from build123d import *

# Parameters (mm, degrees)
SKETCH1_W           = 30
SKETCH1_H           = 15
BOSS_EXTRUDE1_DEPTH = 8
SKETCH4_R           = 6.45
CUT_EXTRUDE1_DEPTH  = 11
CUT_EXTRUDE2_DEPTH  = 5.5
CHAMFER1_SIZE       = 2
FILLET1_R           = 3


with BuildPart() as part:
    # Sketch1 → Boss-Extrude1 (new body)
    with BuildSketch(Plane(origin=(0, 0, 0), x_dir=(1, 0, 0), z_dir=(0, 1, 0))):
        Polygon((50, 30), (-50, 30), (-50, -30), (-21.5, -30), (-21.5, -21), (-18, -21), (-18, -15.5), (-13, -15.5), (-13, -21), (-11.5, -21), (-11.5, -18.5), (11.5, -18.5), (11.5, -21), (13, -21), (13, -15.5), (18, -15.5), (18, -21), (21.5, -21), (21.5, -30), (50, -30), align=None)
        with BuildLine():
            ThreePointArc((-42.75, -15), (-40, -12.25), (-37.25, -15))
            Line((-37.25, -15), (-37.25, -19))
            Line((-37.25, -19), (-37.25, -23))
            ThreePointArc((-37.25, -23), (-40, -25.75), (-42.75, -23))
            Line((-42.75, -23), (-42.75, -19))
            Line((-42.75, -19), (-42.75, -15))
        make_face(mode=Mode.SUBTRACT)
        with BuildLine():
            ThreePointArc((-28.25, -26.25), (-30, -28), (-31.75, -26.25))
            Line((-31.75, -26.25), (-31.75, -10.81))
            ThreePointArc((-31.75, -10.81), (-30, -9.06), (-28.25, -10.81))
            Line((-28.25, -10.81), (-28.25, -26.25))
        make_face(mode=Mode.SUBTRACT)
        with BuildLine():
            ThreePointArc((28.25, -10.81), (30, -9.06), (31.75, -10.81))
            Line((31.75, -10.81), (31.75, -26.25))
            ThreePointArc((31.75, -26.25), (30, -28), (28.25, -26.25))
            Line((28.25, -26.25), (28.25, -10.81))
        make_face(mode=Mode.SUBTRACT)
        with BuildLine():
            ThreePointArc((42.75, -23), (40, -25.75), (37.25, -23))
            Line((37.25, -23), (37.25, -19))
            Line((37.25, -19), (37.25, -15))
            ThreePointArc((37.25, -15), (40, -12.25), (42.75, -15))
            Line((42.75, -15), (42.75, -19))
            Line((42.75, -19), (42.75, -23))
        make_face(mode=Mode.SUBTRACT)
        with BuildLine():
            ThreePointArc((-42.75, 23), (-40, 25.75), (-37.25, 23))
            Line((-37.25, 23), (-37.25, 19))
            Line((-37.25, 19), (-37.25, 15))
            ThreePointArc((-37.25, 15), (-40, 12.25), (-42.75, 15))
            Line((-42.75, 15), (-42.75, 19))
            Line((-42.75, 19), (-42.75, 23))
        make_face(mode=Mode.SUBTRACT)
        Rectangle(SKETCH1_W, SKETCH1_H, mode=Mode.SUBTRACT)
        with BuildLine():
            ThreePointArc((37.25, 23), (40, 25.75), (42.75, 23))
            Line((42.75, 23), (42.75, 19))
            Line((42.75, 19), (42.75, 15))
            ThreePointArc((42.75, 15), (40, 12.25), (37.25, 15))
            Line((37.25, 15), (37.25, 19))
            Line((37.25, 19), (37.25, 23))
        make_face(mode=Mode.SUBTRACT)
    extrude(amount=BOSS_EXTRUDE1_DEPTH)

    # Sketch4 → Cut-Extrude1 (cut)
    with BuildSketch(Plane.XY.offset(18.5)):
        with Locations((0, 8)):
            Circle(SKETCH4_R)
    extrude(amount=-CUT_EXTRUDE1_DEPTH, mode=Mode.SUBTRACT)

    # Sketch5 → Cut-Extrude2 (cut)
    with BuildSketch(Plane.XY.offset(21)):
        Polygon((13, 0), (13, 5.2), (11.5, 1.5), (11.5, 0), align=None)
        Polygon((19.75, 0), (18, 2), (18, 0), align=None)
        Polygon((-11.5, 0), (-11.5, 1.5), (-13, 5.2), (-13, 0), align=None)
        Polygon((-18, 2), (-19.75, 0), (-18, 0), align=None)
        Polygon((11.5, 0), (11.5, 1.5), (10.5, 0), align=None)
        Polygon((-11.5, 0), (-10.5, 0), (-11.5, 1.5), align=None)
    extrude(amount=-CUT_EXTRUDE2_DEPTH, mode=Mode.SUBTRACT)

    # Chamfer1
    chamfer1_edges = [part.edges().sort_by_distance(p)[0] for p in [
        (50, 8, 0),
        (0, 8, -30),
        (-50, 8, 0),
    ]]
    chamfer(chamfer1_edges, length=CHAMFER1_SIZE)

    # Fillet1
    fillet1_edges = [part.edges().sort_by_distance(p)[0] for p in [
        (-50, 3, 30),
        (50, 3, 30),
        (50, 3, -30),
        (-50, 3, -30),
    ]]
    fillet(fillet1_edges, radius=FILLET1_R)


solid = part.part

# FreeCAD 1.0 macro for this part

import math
import FreeCAD as App
import Part
import Sketcher

V = App.Vector
Q = App.Units.Quantity


def edges_at(feature, points):
    """Names of the edges that pass closest to the given points."""
    edges = feature.Shape.Edges
    near = lambda p: min(range(len(edges)), key=lambda i: edges[i].distToShape(Part.Vertex(*p))[0])
    return sorted({f"Edge{near(p) + 1}" for p in points})


def add_polygon(sketch, points):
    """Adds a closed chain of lines whose ends are joined by coincident constraints."""
    first, n = sketch.GeometryCount, len(points)
    for a, b in zip(points, points[1:] + points[:1]):
        sketch.addGeometry(Part.LineSegment(App.Vector(*a, 0), App.Vector(*b, 0)), False)
    for i in range(n):
        sketch.addConstraint(Sketcher.Constraint("Coincident", first + i, 2, first + (i + 1) % n, 1))

doc = App.newDocument("Part")
body = doc.addObject("PartDesign::Body", "Body")

sketch1 = doc.addObject("Sketcher::SketchObject", "Sketch")
body.addObject(sketch1)
sketch1.AttachmentSupport = (doc.XZ_Plane, [""])
sketch1.MapMode = "FlatFace"
add_polygon(sketch1, [(50, -30), (-50, -30), (-50, 30), (-21.5, 30), (-21.5, 21), (-18, 21), (-18, 15.5), (-13, 15.5), (-13, 21), (-11.5, 21), (-11.5, 18.5), (11.5, 18.5), (11.5, 21), (13, 21), (13, 15.5), (18, 15.5), (18, 21), (21.5, 21), (21.5, 30), (50, 30)])
sketch1.addGeometry(Part.LineSegment(V(-42.8, 23, 0), V(-42.8, 15, 0)), False)
sketch1.addGeometry(Part.ArcOfCircle(Part.Circle(V(-40, 15, 0), V(0, 0, 1), 2.8), math.radians(180), math.radians(360)), False)
sketch1.addGeometry(Part.LineSegment(V(-37.2, 15, 0), V(-37.2, 23, 0)), False)
sketch1.addGeometry(Part.ArcOfCircle(Part.Circle(V(-40, 23, 0), V(0, 0, 1), 2.8), math.radians(0), math.radians(180)), False)
sketch1.addGeometry(Part.LineSegment(V(-28.2, 10.8, 0), V(-28.2, 26.2, 0)), False)
sketch1.addGeometry(Part.ArcOfCircle(Part.Circle(V(-30, 26.2, 0), V(0, 0, 1), 1.8), math.radians(0), math.radians(180)), False)
sketch1.addGeometry(Part.LineSegment(V(-31.8, 26.2, 0), V(-31.8, 10.8, 0)), False)
sketch1.addGeometry(Part.ArcOfCircle(Part.Circle(V(-30, 10.8, 0), V(0, 0, 1), 1.8), math.radians(180), math.radians(360)), False)
sketch1.addGeometry(Part.LineSegment(V(28.2, 26.2, 0), V(28.2, 10.8, 0)), False)
sketch1.addGeometry(Part.ArcOfCircle(Part.Circle(V(30, 10.8, 0), V(0, 0, 1), 1.8), math.radians(180), math.radians(360)), False)
sketch1.addGeometry(Part.LineSegment(V(31.8, 10.8, 0), V(31.8, 26.2, 0)), False)
sketch1.addGeometry(Part.ArcOfCircle(Part.Circle(V(30, 26.2, 0), V(0, 0, 1), 1.8), math.radians(0), math.radians(180)), False)
sketch1.addGeometry(Part.LineSegment(V(42.8, 15, 0), V(42.8, 23, 0)), False)
sketch1.addGeometry(Part.ArcOfCircle(Part.Circle(V(40, 23, 0), V(0, 0, 1), 2.8), math.radians(0), math.radians(180)), False)
sketch1.addGeometry(Part.LineSegment(V(37.2, 23, 0), V(37.2, 15, 0)), False)
sketch1.addGeometry(Part.ArcOfCircle(Part.Circle(V(40, 15, 0), V(0, 0, 1), 2.8), math.radians(180), math.radians(360)), False)
sketch1.addGeometry(Part.LineSegment(V(-42.8, -15, 0), V(-42.8, -23, 0)), False)
sketch1.addGeometry(Part.ArcOfCircle(Part.Circle(V(-40, -23, 0), V(0, 0, 1), 2.8), math.radians(180), math.radians(360)), False)
sketch1.addGeometry(Part.LineSegment(V(-37.2, -23, 0), V(-37.2, -15, 0)), False)
sketch1.addGeometry(Part.ArcOfCircle(Part.Circle(V(-40, -15, 0), V(0, 0, 1), 2.8), math.radians(0), math.radians(180)), False)
add_polygon(sketch1, [(15, 7.5), (-15, 7.5), (-15, -7.5), (15, -7.5)])
sketch1.addGeometry(Part.LineSegment(V(37.2, -15, 0), V(37.2, -23, 0)), False)
sketch1.addGeometry(Part.ArcOfCircle(Part.Circle(V(40, -23, 0), V(0, 0, 1), 2.8), math.radians(180), math.radians(360)), False)
sketch1.addGeometry(Part.LineSegment(V(42.8, -23, 0), V(42.8, -15, 0)), False)
sketch1.addGeometry(Part.ArcOfCircle(Part.Circle(V(40, -15, 0), V(0, 0, 1), 2.8), math.radians(0), math.radians(180)), False)
sketch1.addConstraint(Sketcher.Constraint("Tangent", 20, 2, 21, 1))
sketch1.addConstraint(Sketcher.Constraint("Tangent", 21, 2, 22, 1))
sketch1.addConstraint(Sketcher.Constraint("Tangent", 22, 2, 23, 1))
sketch1.addConstraint(Sketcher.Constraint("Tangent", 23, 2, 20, 1))
sketch1.addConstraint(Sketcher.Constraint("Tangent", 24, 2, 25, 1))
sketch1.addConstraint(Sketcher.Constraint("Tangent", 25, 2, 26, 1))
sketch1.addConstraint(Sketcher.Constraint("Tangent", 26, 2, 27, 1))
sketch1.addConstraint(Sketcher.Constraint("Tangent", 27, 2, 24, 1))
sketch1.addConstraint(Sketcher.Constraint("Tangent", 28, 2, 29, 1))
sketch1.addConstraint(Sketcher.Constraint("Tangent", 29, 2, 30, 1))
sketch1.addConstraint(Sketcher.Constraint("Tangent", 30, 2, 31, 1))
sketch1.addConstraint(Sketcher.Constraint("Tangent", 31, 2, 28, 1))
sketch1.addConstraint(Sketcher.Constraint("Tangent", 32, 2, 33, 1))
sketch1.addConstraint(Sketcher.Constraint("Tangent", 33, 2, 34, 1))
sketch1.addConstraint(Sketcher.Constraint("Tangent", 34, 2, 35, 1))
sketch1.addConstraint(Sketcher.Constraint("Tangent", 35, 2, 32, 1))
sketch1.addConstraint(Sketcher.Constraint("Tangent", 36, 2, 37, 1))
sketch1.addConstraint(Sketcher.Constraint("Tangent", 37, 2, 38, 1))
sketch1.addConstraint(Sketcher.Constraint("Tangent", 38, 2, 39, 1))
sketch1.addConstraint(Sketcher.Constraint("Tangent", 39, 2, 36, 1))
sketch1.addConstraint(Sketcher.Constraint("Tangent", 44, 2, 45, 1))
sketch1.addConstraint(Sketcher.Constraint("Tangent", 45, 2, 46, 1))
sketch1.addConstraint(Sketcher.Constraint("Tangent", 46, 2, 47, 1))
sketch1.addConstraint(Sketcher.Constraint("Tangent", 47, 2, 44, 1))
sketch1.addConstraint(Sketcher.Constraint("Horizontal", 0))
sketch1.addConstraint(Sketcher.Constraint("Vertical", 1))
sketch1.addConstraint(Sketcher.Constraint("Horizontal", 2))
sketch1.addConstraint(Sketcher.Constraint("Vertical", 3))
sketch1.addConstraint(Sketcher.Constraint("Horizontal", 4))
sketch1.addConstraint(Sketcher.Constraint("Vertical", 5))
sketch1.addConstraint(Sketcher.Constraint("Horizontal", 6))
sketch1.addConstraint(Sketcher.Constraint("Vertical", 7))
sketch1.addConstraint(Sketcher.Constraint("Horizontal", 8))
sketch1.addConstraint(Sketcher.Constraint("Vertical", 9))
sketch1.addConstraint(Sketcher.Constraint("Horizontal", 10))
sketch1.addConstraint(Sketcher.Constraint("Vertical", 11))
sketch1.addConstraint(Sketcher.Constraint("Horizontal", 12))
sketch1.addConstraint(Sketcher.Constraint("Vertical", 13))
sketch1.addConstraint(Sketcher.Constraint("Horizontal", 14))
sketch1.addConstraint(Sketcher.Constraint("Vertical", 15))
sketch1.addConstraint(Sketcher.Constraint("Horizontal", 16))
sketch1.addConstraint(Sketcher.Constraint("Vertical", 17))
sketch1.addConstraint(Sketcher.Constraint("Horizontal", 18))
sketch1.addConstraint(Sketcher.Constraint("Vertical", 19))
sketch1.addConstraint(Sketcher.Constraint("Vertical", 20))
sketch1.addConstraint(Sketcher.Constraint("Vertical", 22))
sketch1.addConstraint(Sketcher.Constraint("Vertical", 24))
sketch1.addConstraint(Sketcher.Constraint("Vertical", 26))
sketch1.addConstraint(Sketcher.Constraint("Vertical", 28))
sketch1.addConstraint(Sketcher.Constraint("Vertical", 30))
sketch1.addConstraint(Sketcher.Constraint("Vertical", 32))
sketch1.addConstraint(Sketcher.Constraint("Vertical", 34))
sketch1.addConstraint(Sketcher.Constraint("Vertical", 36))
sketch1.addConstraint(Sketcher.Constraint("Vertical", 38))
sketch1.addConstraint(Sketcher.Constraint("Horizontal", 40))
sketch1.addConstraint(Sketcher.Constraint("Vertical", 41))
sketch1.addConstraint(Sketcher.Constraint("Horizontal", 42))
sketch1.addConstraint(Sketcher.Constraint("Vertical", 43))
sketch1.addConstraint(Sketcher.Constraint("Vertical", 44))
sketch1.addConstraint(Sketcher.Constraint("Vertical", 46))
sketch1.addConstraint(Sketcher.Constraint("Equal", 27, 29))
sketch1.addConstraint(Sketcher.Constraint("Equal", 23, 33))
sketch1.addConstraint(Sketcher.Constraint("Equal", 35, 37))
sketch1.addConstraint(Sketcher.Constraint("Equal", 39, 45))
sketch1.addConstraint(Sketcher.Constraint("Symmetric", 33, 3, 37, 3, -1, 1))
sketch1.addConstraint(Sketcher.Constraint("Symmetric", 23, 3, 45, 3, -1, 1))
sketch1.addConstraint(Sketcher.Constraint("Symmetric", 0, 2, 18, 2, -1, 1))
sketch1.addConstraint(Sketcher.Constraint("Symmetric", 40, 2, 42, 2, -1, 1))
sketch1.addConstraint(Sketcher.Constraint("Symmetric", 27, 3, 29, 3, -2))
sketch1.addConstraint(Sketcher.Constraint("Symmetric", 23, 3, 33, 3, -2))
sketch1.addConstraint(Sketcher.Constraint("Symmetric", 8, 2, 11, 2, -2))
sketch1.addConstraint(Sketcher.Constraint("Symmetric", 6, 2, 13, 2, -2))
sketch1.addConstraint(Sketcher.Constraint("Symmetric", 4, 2, 15, 2, -2))
sketch1.addConstraint(Sketcher.Constraint("Symmetric", 2, 2, 17, 2, -2))
sketch1.addConstraint(Sketcher.Constraint("Horizontal", 25, 3, 31, 3))
sketch1.addConstraint(Sketcher.Constraint("Horizontal", 21, 3, 35, 3))
sketch1.addConstraint(Sketcher.Constraint("Horizontal", 39, 3, 47, 3))
sketch1.addConstraint(Sketcher.Constraint("Horizontal", 4, 2, 7, 2))
sketch1.addConstraint(Sketcher.Constraint("Equal", 34, 36))
sketch1.addConstraint(Sketcher.Constraint("DistanceX", 0, 2, 0, 1, Q("100 mm")))
sketch1.addConstraint(Sketcher.Constraint("DistanceX", 6, 1, 6, 2, Q("5 mm")))
sketch1.addConstraint(Sketcher.Constraint("DistanceX", 10, 1, 10, 2, Q("23 mm")))
sketch1.addConstraint(Sketcher.Constraint("DistanceX", 40, 2, 40, 1, Q("30 mm")))
sketch1.addConstraint(Sketcher.Constraint("DistanceY", 1, 1, 1, 2, Q("60 mm")))
sketch1.addConstraint(Sketcher.Constraint("DistanceY", 3, 2, 3, 1, Q("9 mm")))
sketch1.addConstraint(Sketcher.Constraint("DistanceY", 20, 2, 20, 1, Q("8 mm")))
sketch1.addConstraint(Sketcher.Constraint("DistanceY", 41, 2, 41, 1, Q("15 mm")))
sketch1.addConstraint(Sketcher.Constraint("Radius", 21, Q("2.75 mm")))
sketch1.addConstraint(Sketcher.Constraint("Radius", 25, Q("1.75 mm")))
sketch1.addConstraint(Sketcher.Constraint("DistanceX", 2, 1, 2, 2, Q("28.5 mm")))
sketch1.addConstraint(Sketcher.Constraint("DistanceX", 4, 1, 4, 2, Q("3.5 mm")))
sketch1.addConstraint(Sketcher.Constraint("DistanceY", 5, 2, 5, 1, Q("5.5 mm")))
sketch1.addConstraint(Sketcher.Constraint("DistanceY", 9, 2, 9, 1, Q("2.5 mm")))
sketch1.addConstraint(Sketcher.Constraint("DistanceX", 21, 3, -1, 1, Q("40 mm")))
sketch1.addConstraint(Sketcher.Constraint("DistanceY", -1, 1, 21, 3, Q("15 mm")))
sketch1.addConstraint(Sketcher.Constraint("DistanceX", 25, 3, -1, 1, Q("30 mm")))
sketch1.addConstraint(Sketcher.Constraint("DistanceY", 24, 1, 24, 2, Q("15.44 mm")))
sketch1.addConstraint(Sketcher.Constraint("DistanceY", -1, 1, 25, 3, Q("26.25 mm")))
pad1 = doc.addObject("PartDesign::Pad", "Pad")
body.addObject(pad1)
pad1.Profile = sketch1
pad1.Length = 8
pad1.Reversed = True

sketch2 = doc.addObject("Sketcher::SketchObject", "Sketch001")
body.addObject(sketch2)
sketch2.AttachmentSupport = (doc.XY_Plane, [""])
sketch2.MapMode = "FlatFace"
sketch2.AttachmentOffset = App.Placement(V(0, 0, 18.5), App.Rotation())
sketch2.addGeometry(Part.Circle(V(0, 8, 0), V(0, 0, 1), 6), False)
sketch2.addConstraint(Sketcher.Constraint("PointOnObject", 0, 3, -2))
sketch2.addConstraint(Sketcher.Constraint("Diameter", 0, Q("12.9 mm")))
sketch2.addConstraint(Sketcher.Constraint("DistanceY", -1, 1, 0, 3, Q("8 mm")))
pocket1 = doc.addObject("PartDesign::Pocket", "Pocket")
body.addObject(pocket1)
pocket1.Profile = sketch2
pocket1.Length = 11

sketch3 = doc.addObject("Sketcher::SketchObject", "Sketch002")
body.addObject(sketch3)
sketch3.AttachmentSupport = (doc.XY_Plane, [""])
sketch3.MapMode = "FlatFace"
sketch3.AttachmentOffset = App.Placement(V(0, 0, 21), App.Rotation())
add_polygon(sketch3, [(13, 0), (13, 5.2), (11.5, 1.5), (10.5, 0)])
add_polygon(sketch3, [(19.8, 0), (18, 2), (18, 0)])
add_polygon(sketch3, [(-11.5, 1.5), (-13, 5.2), (-13, 0), (-10.5, 0)])
add_polygon(sketch3, [(-18, 2), (-19.8, 0), (-18, 0)])
sketch3.addConstraint(Sketcher.Constraint("Vertical", 0))
sketch3.addConstraint(Sketcher.Constraint("Horizontal", 3))
sketch3.addConstraint(Sketcher.Constraint("Vertical", 5))
sketch3.addConstraint(Sketcher.Constraint("Horizontal", 6))
sketch3.addConstraint(Sketcher.Constraint("Vertical", 8))
sketch3.addConstraint(Sketcher.Constraint("Horizontal", 9))
sketch3.addConstraint(Sketcher.Constraint("Horizontal", 12))
sketch3.addConstraint(Sketcher.Constraint("Vertical", 13))
sketch3.addConstraint(Sketcher.Constraint("Symmetric", 3, 2, 8, 2, -1, 1))
sketch3.addConstraint(Sketcher.Constraint("Symmetric", 6, 2, 11, 2, -1, 1))
sketch3.addConstraint(Sketcher.Constraint("Symmetric", 2, 2, 9, 2, -2))
sketch3.addConstraint(Sketcher.Constraint("Symmetric", 1, 2, 10, 2, -2))
sketch3.addConstraint(Sketcher.Constraint("Symmetric", 5, 2, 12, 2, -2))
sketch3.addConstraint(Sketcher.Constraint("Horizontal", 0, 2, 7, 2))
sketch3.addConstraint(Sketcher.Constraint("Horizontal", 4, 2, 13, 2))
sketch3.addConstraint(Sketcher.Constraint("DistanceY", 5, 2, 5, 1, Q("2 mm")))
sketch3.addConstraint(Sketcher.Constraint("DistanceX", 3, 1, 3, 2, Q("2.5 mm")))
sketch3.addConstraint(Sketcher.Constraint("DistanceY", 0, 1, 0, 2, Q("5.2 mm")))
sketch3.addConstraint(Sketcher.Constraint("DistanceX", -1, 1, 0, 2, Q("13 mm")))
sketch3.addConstraint(Sketcher.Constraint("DistanceX", -1, 1, 4, 2, Q("18 mm")))
sketch3.addConstraint(Sketcher.Constraint("DistanceX", 2, 2, 1, 2, Q("1 mm")))
sketch3.addConstraint(Sketcher.Constraint("DistanceX", 6, 1, 6, 2, Q("1.75 mm")))
sketch3.addConstraint(Sketcher.Constraint("DistanceY", -1, 1, 1, 2, Q("1.5 mm")))
pocket2 = doc.addObject("PartDesign::Pocket", "Pocket001")
body.addObject(pocket2)
pocket2.Profile = sketch3
pocket2.Length = 5.5
doc.recompute()

chamfer = doc.addObject("PartDesign::Chamfer", "Chamfer")
body.addObject(chamfer)
chamfer.Base = (pocket2, edges_at(pocket2, [(50, 8, 0), (0, 8, -30), (-50, 8, 0)]))
chamfer.Size = 2
doc.recompute()

fillet = doc.addObject("PartDesign::Fillet", "Fillet")
body.addObject(fillet)
fillet.Base = (chamfer, edges_at(chamfer, [
    (-50, 3, 30),
    (50, 3, 30),
    (50, 3, -30),
    (-50, 3, -30),
]))
fillet.Radius = 3

doc.recompute()
